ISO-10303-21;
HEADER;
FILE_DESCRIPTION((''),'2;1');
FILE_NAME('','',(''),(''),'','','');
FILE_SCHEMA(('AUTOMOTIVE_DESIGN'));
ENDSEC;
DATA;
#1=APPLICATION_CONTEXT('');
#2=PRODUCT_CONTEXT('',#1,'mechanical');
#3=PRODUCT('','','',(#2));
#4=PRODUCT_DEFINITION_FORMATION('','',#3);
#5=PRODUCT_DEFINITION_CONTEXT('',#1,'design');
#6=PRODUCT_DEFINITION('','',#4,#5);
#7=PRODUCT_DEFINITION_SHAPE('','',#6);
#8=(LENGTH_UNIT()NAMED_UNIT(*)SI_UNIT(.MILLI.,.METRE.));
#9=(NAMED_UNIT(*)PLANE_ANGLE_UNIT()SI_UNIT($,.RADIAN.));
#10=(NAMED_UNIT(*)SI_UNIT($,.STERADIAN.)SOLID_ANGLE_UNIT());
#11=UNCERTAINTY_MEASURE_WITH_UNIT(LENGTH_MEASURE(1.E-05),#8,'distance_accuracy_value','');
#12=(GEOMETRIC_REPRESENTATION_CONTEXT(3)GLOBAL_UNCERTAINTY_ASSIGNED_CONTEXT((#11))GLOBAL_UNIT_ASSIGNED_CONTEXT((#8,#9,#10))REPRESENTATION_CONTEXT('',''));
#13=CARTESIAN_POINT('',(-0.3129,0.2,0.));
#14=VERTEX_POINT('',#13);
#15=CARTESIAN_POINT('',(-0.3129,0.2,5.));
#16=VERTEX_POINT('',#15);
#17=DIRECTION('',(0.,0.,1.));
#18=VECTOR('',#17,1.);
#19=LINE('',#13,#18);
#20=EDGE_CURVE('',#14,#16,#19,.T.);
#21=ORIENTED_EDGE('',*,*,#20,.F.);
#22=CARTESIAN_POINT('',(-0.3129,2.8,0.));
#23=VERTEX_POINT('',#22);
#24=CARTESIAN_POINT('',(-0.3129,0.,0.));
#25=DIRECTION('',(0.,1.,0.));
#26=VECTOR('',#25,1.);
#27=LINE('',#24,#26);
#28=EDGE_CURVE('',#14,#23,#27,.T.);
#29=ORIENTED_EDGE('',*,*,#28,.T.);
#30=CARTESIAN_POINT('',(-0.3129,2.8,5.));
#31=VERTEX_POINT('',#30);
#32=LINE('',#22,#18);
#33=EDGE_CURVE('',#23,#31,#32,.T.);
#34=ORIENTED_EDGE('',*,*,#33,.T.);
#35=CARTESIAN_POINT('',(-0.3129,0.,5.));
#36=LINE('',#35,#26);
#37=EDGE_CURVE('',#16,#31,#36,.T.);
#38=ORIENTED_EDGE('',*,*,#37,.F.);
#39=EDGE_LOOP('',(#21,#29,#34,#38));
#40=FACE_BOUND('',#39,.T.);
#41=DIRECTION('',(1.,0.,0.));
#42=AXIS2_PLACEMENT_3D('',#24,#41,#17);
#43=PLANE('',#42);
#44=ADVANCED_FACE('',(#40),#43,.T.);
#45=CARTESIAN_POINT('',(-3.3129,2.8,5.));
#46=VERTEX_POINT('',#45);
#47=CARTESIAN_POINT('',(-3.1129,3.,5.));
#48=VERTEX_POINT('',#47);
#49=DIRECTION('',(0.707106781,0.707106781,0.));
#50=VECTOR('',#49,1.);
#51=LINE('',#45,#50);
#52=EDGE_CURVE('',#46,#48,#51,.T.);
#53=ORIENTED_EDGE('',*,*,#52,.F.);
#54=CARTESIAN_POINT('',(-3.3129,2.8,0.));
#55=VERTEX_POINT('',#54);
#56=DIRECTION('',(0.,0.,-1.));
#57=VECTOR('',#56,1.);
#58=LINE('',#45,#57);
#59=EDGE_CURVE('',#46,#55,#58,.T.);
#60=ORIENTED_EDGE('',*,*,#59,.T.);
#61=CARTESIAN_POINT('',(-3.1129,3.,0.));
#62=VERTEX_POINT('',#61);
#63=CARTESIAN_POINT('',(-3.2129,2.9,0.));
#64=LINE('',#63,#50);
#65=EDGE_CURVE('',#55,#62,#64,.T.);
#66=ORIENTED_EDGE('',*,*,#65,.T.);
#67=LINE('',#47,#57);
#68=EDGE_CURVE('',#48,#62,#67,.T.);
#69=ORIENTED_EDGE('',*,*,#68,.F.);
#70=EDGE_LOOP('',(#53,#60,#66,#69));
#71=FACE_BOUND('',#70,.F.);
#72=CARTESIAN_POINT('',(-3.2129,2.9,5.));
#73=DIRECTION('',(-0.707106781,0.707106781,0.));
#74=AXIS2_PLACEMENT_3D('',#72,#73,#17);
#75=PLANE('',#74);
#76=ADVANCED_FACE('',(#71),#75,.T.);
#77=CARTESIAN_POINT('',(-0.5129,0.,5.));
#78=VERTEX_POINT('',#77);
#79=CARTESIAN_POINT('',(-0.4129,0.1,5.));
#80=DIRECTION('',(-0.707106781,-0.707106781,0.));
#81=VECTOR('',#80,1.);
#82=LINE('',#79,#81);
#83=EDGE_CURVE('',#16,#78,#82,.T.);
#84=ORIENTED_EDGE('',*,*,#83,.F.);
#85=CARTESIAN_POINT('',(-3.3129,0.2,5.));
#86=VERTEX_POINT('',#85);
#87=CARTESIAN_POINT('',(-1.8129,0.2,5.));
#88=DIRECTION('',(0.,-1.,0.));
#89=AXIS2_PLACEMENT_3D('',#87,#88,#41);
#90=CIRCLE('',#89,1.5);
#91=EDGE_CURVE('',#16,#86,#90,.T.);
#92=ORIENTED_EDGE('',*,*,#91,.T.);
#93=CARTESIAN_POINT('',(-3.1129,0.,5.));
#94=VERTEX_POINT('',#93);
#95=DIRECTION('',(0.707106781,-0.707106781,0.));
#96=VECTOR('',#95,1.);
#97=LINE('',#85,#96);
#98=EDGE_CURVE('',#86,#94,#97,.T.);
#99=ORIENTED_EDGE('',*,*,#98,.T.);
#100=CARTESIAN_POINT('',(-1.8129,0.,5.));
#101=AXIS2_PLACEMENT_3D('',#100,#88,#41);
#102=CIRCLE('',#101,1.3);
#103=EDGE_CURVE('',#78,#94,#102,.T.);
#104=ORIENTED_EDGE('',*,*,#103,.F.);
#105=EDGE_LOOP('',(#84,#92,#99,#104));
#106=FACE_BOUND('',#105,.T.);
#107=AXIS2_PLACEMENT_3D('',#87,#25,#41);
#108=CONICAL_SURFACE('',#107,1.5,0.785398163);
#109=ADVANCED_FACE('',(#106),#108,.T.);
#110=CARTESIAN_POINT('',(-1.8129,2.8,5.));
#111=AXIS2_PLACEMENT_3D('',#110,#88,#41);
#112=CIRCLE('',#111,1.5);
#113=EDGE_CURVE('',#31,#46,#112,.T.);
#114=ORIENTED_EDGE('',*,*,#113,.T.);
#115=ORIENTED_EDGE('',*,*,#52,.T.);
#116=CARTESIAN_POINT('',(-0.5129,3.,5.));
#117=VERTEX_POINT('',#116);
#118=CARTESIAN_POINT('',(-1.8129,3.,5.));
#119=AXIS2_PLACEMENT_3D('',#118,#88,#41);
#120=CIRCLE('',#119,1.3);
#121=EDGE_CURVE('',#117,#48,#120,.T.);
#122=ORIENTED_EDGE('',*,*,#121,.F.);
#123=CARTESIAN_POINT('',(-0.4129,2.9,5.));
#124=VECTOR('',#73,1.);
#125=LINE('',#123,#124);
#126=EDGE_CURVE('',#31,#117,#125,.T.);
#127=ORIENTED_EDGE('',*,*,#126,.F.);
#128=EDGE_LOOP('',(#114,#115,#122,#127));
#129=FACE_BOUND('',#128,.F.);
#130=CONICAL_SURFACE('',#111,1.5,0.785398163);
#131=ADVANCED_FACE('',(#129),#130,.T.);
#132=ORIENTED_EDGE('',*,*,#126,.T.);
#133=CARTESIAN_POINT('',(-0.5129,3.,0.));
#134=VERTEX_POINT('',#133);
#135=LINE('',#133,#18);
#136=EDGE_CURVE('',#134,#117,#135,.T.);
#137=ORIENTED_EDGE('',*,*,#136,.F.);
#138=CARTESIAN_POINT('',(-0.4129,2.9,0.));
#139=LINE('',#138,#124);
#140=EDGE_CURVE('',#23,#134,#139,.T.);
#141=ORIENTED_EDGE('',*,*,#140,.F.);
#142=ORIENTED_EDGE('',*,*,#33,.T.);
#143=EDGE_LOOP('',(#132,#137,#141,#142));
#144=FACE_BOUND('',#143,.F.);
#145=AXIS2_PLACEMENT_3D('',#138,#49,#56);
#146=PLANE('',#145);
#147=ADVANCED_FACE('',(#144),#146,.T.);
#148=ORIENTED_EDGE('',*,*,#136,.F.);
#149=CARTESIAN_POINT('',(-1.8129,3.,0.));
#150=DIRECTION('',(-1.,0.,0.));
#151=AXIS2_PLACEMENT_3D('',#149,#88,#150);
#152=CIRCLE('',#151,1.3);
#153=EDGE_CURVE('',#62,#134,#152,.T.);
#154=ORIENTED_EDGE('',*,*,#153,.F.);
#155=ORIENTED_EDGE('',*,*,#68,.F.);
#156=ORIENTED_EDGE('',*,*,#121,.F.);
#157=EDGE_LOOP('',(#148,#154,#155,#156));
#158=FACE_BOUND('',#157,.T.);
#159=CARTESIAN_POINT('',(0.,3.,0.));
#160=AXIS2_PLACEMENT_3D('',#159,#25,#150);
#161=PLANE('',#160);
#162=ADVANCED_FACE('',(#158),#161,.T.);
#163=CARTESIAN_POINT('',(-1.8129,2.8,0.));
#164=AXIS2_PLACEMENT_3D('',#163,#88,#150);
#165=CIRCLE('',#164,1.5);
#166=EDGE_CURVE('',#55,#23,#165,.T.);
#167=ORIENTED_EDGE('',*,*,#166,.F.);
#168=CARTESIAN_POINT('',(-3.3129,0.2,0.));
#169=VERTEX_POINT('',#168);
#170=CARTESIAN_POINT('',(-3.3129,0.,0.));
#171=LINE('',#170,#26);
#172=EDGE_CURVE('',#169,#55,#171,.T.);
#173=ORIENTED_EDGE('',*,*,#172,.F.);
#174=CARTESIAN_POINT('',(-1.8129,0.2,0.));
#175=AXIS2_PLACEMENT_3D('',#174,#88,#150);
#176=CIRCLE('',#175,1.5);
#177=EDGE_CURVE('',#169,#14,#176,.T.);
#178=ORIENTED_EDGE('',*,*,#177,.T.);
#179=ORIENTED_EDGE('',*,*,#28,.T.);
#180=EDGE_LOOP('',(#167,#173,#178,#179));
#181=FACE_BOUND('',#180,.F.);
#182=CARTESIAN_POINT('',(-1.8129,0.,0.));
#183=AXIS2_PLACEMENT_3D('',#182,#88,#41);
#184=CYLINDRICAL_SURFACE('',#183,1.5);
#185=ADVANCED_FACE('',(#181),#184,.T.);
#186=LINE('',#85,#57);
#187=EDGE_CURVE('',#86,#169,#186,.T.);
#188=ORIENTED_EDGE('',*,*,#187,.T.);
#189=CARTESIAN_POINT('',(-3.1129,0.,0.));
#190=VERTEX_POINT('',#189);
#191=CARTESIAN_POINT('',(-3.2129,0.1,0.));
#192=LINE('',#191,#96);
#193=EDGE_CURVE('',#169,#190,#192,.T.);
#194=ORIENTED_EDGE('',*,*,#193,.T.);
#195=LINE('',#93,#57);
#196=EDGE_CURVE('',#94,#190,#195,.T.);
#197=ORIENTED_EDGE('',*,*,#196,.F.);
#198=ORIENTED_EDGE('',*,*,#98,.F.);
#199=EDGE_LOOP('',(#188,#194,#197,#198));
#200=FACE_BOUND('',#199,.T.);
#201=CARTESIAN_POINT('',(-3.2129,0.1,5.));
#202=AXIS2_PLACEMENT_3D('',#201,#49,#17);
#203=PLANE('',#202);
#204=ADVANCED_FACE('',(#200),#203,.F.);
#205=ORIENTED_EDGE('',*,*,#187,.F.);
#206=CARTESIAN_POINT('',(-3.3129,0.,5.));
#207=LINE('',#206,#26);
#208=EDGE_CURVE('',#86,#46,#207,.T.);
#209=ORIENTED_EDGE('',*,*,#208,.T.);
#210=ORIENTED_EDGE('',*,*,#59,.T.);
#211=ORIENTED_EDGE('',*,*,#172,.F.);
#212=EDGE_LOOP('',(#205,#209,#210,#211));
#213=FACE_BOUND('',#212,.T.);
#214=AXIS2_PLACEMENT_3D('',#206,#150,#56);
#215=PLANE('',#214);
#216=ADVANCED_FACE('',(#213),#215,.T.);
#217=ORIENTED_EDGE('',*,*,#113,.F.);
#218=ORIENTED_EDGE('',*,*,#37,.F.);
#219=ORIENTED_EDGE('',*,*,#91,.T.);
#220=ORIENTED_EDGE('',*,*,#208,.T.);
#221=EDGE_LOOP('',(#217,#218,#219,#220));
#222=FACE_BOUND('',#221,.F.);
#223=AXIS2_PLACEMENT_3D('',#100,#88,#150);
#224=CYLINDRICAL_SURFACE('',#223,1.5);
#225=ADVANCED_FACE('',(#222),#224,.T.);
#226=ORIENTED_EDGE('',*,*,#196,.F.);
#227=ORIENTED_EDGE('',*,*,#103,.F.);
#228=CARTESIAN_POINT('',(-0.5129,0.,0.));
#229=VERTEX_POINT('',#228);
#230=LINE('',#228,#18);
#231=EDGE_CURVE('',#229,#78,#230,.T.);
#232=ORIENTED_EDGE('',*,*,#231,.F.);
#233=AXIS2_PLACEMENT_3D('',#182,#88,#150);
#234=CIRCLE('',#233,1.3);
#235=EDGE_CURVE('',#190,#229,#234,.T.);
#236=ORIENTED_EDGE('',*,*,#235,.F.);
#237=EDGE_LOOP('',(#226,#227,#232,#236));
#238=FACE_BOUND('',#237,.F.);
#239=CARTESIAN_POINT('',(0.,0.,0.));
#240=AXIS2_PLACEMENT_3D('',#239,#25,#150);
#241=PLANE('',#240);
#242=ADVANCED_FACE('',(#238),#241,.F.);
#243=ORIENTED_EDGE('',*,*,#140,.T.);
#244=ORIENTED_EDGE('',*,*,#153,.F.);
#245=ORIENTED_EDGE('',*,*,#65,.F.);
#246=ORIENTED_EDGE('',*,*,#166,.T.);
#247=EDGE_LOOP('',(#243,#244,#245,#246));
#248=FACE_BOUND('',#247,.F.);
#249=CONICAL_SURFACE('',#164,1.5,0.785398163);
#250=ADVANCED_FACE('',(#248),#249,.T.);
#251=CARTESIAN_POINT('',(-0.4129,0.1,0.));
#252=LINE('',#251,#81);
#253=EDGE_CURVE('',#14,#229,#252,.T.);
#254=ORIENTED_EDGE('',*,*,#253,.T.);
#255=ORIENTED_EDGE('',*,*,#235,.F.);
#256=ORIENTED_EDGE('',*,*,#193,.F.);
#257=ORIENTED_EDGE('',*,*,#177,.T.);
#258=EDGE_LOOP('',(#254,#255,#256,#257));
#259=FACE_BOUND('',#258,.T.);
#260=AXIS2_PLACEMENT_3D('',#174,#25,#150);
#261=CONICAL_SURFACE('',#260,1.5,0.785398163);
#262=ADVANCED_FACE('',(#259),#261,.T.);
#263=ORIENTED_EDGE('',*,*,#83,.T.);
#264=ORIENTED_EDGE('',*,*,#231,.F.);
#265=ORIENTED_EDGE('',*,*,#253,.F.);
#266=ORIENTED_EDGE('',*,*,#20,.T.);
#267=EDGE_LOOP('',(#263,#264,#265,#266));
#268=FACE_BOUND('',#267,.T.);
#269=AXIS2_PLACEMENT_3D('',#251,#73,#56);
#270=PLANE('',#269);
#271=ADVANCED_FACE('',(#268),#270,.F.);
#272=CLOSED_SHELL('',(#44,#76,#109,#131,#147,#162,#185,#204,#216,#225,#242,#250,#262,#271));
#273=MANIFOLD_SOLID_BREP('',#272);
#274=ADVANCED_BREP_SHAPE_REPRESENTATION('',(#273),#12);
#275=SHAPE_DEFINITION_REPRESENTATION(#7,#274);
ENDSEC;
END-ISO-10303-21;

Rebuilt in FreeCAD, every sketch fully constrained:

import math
import FreeCAD as App
import Part
import Sketcher
from FreeCAD import Vector
Q = App.Units.Quantity


def edges_at(feature, points):
    """Names of the edges that pass closest to the given points."""
    edges = feature.Shape.Edges
    near = lambda p: min(range(len(edges)), key=lambda i: edges[i].distToShape(Part.Vertex(*p))[0])
    return sorted({f"Edge{near(p) + 1}" for p in points})

doc = App.newDocument("Part")
body = doc.addObject("PartDesign::Body", "Body")

sketch1 = body.newObject("Sketcher::SketchObject", "Sketch")
sketch1.AttachmentSupport = (doc.getObject("XZ_Plane"), [""])
sketch1.MapMode = "FlatFace"
sketch1.addGeometry([
    Part.LineSegment(Vector(-0.3129, 5, 0), Vector(-0.3129, 0, 0)),
    Part.ArcOfCircle(Part.Circle(Vector(-1.8129, 0, 0), Vector(0, 0, 1), 1.5), math.radians(180), math.radians(360)),
    Part.LineSegment(Vector(-3.3129, 0, 0), Vector(-3.3129, 5, 0)),
    Part.ArcOfCircle(Part.Circle(Vector(-1.8129, 5, 0), Vector(0, 0, 1), 1.5), math.radians(0), math.radians(180)),
], False)
sketch1.addConstraint([
    Sketcher.Constraint("Tangent", 0, 2, 1, 2),
    Sketcher.Constraint("Tangent", 1, 1, 2, 1),
    Sketcher.Constraint("Tangent", 2, 2, 3, 2),
    Sketcher.Constraint("Tangent", 3, 1, 0, 1),
    Sketcher.Constraint("Vertical", 0),
    Sketcher.Constraint("Vertical", 2),
    Sketcher.Constraint("PointOnObject", 1, 3, -1),
    Sketcher.Constraint("Radius", 1, Q("1.5 mm")),
    Sketcher.Constraint("DistanceY", 0, 2, 0, 1, Q("5 mm")),
    Sketcher.Constraint("DistanceX", 1, 3, -1, 1, Q("1.813 mm")),
])
pad1 = body.newObject("PartDesign::Pad", "Pad")
pad1.Profile = sketch1
pad1.Length = 3
pad1.Reversed = True
doc.recompute()

chamfer = body.newObject("PartDesign::Chamfer", "Chamfer")
chamfer.Base = (pad1, edges_at(pad1, [
    (-0.313, 3, 2.5),
    (-1.813, 3, -1.5),
    (-1.813, 3, 6.5),
    (-3.313, 3, 2.5),
    (-0.313, 0, 2.5),
    (-1.813, 0, 6.5),
    (-3.313, 0, 2.5),
    (-1.813, 0, -1.5),
]))
chamfer.Size = 0.2

doc.recompute()
